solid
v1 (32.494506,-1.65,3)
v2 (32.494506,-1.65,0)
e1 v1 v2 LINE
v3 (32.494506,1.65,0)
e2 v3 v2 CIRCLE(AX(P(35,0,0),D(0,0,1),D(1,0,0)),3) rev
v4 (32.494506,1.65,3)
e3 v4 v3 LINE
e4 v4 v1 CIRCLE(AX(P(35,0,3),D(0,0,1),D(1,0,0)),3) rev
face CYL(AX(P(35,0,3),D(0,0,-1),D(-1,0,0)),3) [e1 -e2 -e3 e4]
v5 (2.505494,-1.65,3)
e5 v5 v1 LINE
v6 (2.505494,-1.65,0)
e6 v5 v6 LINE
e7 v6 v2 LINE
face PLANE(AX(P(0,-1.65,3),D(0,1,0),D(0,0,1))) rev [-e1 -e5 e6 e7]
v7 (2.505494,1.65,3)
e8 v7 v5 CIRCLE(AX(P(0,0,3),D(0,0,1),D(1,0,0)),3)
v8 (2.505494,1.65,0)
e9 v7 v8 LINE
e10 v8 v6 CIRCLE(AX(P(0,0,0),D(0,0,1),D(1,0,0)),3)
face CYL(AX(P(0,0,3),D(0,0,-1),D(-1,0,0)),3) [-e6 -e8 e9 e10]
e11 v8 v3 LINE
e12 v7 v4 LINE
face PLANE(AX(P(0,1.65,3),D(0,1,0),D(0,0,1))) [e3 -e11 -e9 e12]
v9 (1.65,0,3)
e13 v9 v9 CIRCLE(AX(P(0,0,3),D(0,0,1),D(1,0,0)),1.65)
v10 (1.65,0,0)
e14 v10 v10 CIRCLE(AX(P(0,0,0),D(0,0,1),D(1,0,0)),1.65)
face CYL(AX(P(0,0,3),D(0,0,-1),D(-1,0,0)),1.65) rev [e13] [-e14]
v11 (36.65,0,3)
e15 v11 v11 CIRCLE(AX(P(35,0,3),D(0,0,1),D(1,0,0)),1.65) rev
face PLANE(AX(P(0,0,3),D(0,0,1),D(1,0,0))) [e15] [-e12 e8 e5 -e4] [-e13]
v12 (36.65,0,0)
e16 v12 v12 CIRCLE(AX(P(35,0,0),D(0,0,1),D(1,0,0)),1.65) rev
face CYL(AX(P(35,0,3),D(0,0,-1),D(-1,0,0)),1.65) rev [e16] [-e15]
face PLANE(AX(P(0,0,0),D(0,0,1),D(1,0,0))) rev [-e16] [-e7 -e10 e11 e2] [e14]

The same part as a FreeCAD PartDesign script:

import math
import FreeCAD as App
import Part
import Sketcher
from FreeCAD import Vector

doc = App.newDocument("Part")
body = doc.addObject("PartDesign::Body", "Body")

sketch1 = body.newObject("Sketcher::SketchObject", "Sketch")
sketch1.AttachmentSupport = (doc.getObject("XY_Plane"), [""])
sketch1.MapMode = "FlatFace"
sketch1.addGeometry([
    Part.LineSegment(Vector(32.5, 1.6, 0), Vector(2.5, 1.6, 0)),
    Part.ArcOfCircle(Part.Circle(Vector(0, 0, 0), Vector(0, 0, 1), 3), math.radians(33), math.radians(327)),
    Part.LineSegment(Vector(2.5, -1.6, 0), Vector(32.5, -1.6, 0)),
    Part.ArcOfCircle(Part.Circle(Vector(35, 0, 0), Vector(0, 0, 1), 3), math.radians(-147), math.radians(0)),
    Part.ArcOfCircle(Part.Circle(Vector(35, 0, 0), Vector(0, 0, 1), 3), math.radians(0), math.radians(147)),
    Part.ArcOfCircle(Part.Circle(Vector(0, 0, 0), Vector(0, 0, 1), 1.6), math.radians(-90), math.radians(0)),
    Part.ArcOfCircle(Part.Circle(Vector(0, 0, 0), Vector(0, 0, 1), 1.6), math.radians(90), math.radians(270)),
    Part.ArcOfCircle(Part.Circle(Vector(0, 0, 0), Vector(0, 0, 1), 1.6), math.radians(0), math.radians(90)),
    Part.ArcOfCircle(Part.Circle(Vector(35, 0, 0), Vector(0, 0, 1), 1.6), math.radians(90), math.radians(270)),
    Part.ArcOfCircle(Part.Circle(Vector(35, 0, 0), Vector(0, 0, 1), 1.6), math.radians(0), math.radians(90)),
    Part.ArcOfCircle(Part.Circle(Vector(35, 0, 0), Vector(0, 0, 1), 1.6), math.radians(-90), math.radians(0)),
], False)
sketch1.addConstraint([
    Sketcher.Constraint("Coincident", 0, 2, 1, 1),
    Sketcher.Constraint("Coincident", 1, 2, 2, 1),
    Sketcher.Constraint("Coincident", 2, 2, 3, 1),
    Sketcher.Constraint("Tangent", 3, 2, 4, 1),
    Sketcher.Constraint("Coincident", 4, 2, 0, 1),
    Sketcher.Constraint("Tangent", 5, 1, 6, 2),
    Sketcher.Constraint("Tangent", 6, 1, 7, 2),
    Sketcher.Constraint("Tangent", 7, 1, 5, 2),
    Sketcher.Constraint("Tangent", 8, 1, 9, 2),
    Sketcher.Constraint("Tangent", 9, 1, 10, 2),
    Sketcher.Constraint("Tangent", 10, 1, 8, 2),
    Sketcher.Constraint("Horizontal", 0),
    Sketcher.Constraint("Horizontal", 2),
    Sketcher.Constraint("Coincident", 1, 3, -1, 1),
    Sketcher.Constraint("Coincident", 5, 3, -1, 1),
    Sketcher.Constraint("Coincident", 8, 3, 3, 3),
    Sketcher.Constraint("Equal", 1, 3),
    Sketcher.Constraint("Equal", 3, 4),
    Sketcher.Constraint("Equal", 7, 8),
    Sketcher.Constraint("Symmetric", 2, 2, 4, 2, -1),
    Sketcher.Constraint("PointOnObject", 3, 2, -1),
    Sketcher.Constraint("PointOnObject", 5, 1, -2),
    Sketcher.Constraint("PointOnObject", 6, 1, -2),
    Sketcher.Constraint("PointOnObject", 7, 1, -1),
    Sketcher.Constraint("PointOnObject", 9, 1, -1),
    Sketcher.Constraint("Horizontal", 2, 2, 5, 1),
    Sketcher.Constraint("Vertical", 10, 3, 8, 1),
    Sketcher.Constraint("Vertical", 8, 1, 10, 1),
    Sketcher.Constraint("Radius", 1, 3.0),
    Sketcher.Constraint("Radius", 5, 1.65),
    Sketcher.Constraint("DistanceX", -1, 1, 3, 3, 35.0),
])
pad1 = body.newObject("PartDesign::Pad", "Pad")
pad1.Profile = sketch1
pad1.Length = 3

doc.recompute()
